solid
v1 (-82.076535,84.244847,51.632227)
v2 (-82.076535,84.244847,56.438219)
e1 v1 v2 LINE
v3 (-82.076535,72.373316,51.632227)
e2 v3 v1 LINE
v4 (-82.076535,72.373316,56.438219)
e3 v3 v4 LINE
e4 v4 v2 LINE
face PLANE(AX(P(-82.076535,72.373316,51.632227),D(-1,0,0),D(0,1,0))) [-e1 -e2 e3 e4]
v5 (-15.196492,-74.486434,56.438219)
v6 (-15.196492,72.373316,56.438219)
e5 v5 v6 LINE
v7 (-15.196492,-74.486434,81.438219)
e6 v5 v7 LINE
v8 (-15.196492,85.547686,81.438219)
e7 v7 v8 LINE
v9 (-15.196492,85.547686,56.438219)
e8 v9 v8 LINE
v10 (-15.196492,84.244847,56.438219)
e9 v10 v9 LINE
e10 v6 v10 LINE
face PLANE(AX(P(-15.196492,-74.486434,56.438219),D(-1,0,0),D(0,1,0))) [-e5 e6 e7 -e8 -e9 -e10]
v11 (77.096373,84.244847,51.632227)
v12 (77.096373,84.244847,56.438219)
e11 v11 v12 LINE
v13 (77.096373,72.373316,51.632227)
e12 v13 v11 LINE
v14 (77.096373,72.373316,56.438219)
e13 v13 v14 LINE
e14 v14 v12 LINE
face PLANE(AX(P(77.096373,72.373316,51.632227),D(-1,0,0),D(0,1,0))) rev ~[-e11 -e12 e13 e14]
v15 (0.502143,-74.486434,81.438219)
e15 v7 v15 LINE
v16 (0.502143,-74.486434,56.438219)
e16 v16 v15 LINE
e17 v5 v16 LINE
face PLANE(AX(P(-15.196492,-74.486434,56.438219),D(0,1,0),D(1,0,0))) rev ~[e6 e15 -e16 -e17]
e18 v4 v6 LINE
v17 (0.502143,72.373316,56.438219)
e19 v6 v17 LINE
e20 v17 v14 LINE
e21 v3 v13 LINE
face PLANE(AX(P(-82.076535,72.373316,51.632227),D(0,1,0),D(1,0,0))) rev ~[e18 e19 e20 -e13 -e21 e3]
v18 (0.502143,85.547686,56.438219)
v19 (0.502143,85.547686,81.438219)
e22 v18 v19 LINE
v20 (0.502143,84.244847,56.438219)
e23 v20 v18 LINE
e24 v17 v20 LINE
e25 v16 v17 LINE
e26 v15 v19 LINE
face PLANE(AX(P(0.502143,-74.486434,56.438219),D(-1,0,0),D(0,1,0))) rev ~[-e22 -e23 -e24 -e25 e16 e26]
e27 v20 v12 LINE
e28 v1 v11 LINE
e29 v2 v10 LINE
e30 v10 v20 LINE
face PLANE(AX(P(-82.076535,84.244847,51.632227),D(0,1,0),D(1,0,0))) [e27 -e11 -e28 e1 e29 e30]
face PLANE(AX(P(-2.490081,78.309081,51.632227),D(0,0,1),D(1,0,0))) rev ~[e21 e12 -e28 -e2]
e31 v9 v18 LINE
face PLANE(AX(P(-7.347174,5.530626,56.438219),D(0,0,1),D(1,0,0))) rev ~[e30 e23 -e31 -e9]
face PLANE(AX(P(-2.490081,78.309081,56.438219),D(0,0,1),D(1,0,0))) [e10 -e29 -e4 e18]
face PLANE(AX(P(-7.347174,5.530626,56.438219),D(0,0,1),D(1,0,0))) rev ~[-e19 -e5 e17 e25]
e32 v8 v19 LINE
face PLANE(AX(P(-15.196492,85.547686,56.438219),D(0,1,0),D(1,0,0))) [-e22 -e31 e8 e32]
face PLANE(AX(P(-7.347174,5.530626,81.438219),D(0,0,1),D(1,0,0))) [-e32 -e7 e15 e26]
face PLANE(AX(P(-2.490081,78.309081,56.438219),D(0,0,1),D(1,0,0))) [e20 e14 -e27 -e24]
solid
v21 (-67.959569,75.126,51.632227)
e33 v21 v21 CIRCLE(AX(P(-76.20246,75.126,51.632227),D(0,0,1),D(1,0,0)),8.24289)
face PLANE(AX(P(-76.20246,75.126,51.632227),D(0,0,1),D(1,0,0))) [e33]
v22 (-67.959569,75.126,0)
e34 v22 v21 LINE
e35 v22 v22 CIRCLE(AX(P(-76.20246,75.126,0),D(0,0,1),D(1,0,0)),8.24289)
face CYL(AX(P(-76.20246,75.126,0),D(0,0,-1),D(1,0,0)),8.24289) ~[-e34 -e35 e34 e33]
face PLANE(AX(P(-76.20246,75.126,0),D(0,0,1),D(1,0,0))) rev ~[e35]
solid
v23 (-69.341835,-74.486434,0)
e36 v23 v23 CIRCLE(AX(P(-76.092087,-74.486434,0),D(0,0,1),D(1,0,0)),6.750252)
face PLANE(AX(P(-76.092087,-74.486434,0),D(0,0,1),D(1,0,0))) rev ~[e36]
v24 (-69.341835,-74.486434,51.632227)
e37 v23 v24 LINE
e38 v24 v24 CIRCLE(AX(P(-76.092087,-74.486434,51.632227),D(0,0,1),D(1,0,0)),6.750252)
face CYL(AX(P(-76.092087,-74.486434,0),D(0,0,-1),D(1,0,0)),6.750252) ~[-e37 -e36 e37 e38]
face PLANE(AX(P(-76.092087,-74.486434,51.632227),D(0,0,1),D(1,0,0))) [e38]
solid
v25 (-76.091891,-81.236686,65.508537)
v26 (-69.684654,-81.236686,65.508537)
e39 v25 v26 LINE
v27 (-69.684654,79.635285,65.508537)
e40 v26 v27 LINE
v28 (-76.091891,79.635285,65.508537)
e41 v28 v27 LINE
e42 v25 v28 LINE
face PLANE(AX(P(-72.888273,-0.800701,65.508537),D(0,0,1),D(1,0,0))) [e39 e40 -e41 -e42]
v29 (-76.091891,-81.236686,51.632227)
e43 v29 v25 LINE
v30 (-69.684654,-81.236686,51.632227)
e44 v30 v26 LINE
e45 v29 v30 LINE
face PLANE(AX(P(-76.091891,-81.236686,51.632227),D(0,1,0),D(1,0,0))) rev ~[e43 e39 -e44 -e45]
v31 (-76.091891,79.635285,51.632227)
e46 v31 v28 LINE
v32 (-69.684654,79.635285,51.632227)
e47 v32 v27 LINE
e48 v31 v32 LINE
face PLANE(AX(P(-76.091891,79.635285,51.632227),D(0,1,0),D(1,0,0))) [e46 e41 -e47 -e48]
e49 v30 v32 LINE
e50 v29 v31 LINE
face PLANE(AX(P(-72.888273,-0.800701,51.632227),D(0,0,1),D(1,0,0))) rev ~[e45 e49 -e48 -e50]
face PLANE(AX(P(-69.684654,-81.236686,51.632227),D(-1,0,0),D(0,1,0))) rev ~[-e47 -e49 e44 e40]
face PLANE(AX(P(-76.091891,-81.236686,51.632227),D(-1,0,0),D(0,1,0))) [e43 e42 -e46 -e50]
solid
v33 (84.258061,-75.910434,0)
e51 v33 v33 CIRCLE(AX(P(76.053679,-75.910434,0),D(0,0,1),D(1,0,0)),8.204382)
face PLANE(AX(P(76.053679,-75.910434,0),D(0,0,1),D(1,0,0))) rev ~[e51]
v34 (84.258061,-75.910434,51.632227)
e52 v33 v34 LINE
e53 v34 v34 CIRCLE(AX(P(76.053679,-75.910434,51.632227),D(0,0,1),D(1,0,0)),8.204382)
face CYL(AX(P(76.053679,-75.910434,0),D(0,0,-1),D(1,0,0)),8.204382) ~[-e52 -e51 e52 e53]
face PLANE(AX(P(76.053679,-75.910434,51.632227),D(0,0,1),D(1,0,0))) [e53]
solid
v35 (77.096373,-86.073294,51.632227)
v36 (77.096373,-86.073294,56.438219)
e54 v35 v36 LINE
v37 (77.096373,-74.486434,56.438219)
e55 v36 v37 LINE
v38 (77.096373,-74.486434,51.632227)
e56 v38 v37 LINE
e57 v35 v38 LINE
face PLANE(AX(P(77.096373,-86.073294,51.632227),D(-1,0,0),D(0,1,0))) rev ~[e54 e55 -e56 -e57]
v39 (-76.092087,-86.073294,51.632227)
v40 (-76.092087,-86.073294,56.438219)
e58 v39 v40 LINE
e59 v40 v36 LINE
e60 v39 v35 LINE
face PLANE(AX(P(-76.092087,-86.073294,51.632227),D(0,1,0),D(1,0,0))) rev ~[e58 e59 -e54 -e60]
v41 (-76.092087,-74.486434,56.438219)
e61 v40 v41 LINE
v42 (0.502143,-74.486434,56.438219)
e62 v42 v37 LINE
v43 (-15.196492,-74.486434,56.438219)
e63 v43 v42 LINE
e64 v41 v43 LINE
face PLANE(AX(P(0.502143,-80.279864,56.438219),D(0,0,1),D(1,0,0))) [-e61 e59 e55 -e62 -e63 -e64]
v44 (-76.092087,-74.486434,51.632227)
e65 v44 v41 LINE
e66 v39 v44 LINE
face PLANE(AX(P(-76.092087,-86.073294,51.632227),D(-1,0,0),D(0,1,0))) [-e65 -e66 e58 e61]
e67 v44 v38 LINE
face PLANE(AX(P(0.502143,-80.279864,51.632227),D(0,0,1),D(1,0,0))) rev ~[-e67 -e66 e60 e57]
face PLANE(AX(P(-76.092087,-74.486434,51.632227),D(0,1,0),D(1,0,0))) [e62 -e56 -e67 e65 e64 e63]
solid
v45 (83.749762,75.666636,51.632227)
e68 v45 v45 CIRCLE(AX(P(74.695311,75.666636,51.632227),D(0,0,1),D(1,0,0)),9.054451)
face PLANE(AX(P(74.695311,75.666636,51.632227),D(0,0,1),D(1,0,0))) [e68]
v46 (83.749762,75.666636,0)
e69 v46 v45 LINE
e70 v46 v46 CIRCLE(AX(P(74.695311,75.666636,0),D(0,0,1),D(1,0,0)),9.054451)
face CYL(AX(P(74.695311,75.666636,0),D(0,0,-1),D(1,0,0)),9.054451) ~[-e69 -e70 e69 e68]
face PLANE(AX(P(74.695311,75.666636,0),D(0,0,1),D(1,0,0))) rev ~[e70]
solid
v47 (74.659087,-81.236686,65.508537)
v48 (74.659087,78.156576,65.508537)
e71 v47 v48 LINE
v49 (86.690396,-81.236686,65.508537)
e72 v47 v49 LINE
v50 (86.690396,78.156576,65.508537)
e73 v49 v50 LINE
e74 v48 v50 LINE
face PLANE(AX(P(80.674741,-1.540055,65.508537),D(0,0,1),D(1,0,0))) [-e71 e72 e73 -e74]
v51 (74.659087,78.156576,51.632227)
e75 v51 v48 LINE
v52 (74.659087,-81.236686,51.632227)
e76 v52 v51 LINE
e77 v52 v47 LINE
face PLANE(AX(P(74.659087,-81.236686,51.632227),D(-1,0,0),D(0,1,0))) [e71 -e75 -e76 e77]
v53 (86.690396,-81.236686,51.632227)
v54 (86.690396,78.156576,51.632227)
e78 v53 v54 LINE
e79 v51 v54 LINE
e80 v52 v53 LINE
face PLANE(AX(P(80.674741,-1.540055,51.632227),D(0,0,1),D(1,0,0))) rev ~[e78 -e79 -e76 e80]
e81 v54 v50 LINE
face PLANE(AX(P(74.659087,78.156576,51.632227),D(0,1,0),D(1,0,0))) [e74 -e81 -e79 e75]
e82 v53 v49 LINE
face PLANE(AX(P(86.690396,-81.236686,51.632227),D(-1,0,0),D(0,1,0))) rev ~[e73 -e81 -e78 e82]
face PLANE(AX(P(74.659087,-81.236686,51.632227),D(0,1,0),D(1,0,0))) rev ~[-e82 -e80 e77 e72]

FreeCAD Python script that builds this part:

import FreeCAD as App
import Part
import Sketcher

doc = App.newDocument("Part")
body = doc.addObject("PartDesign::Body", "Body")

# Sketch on XY plane
sketch1 = doc.addObject("Sketcher::SketchObject", "Sketch")
body.addObject(sketch1)
sketch1.AttachmentSupport = (doc.XY_Plane, [""])
sketch1.MapMode = "FlatFace"
sketch1.addGeometry(Part.Circle(App.Vector(-76, -74, 0), App.Vector(0, 0, 1), 7), False)
sketch1.addConstraint(Sketcher.Constraint("Diameter", 0, 13.500504))
sketch1.addConstraint(Sketcher.Constraint("DistanceX", 0, 3, -1, 1, 76.092087))
sketch1.addConstraint(Sketcher.Constraint("DistanceY", 0, 3, -1, 1, 74.486434))
pad1 = doc.addObject("PartDesign::Pad", "Pad")
body.addObject(pad1)
pad1.Profile = sketch1
pad1.Length = 51.632227
body2 = doc.addObject("PartDesign::Body", "Body001")

# Sketch on XY plane
sketch2 = doc.addObject("Sketcher::SketchObject", "Sketch001")
body2.addObject(sketch2)
sketch2.AttachmentSupport = (doc.getObject("XY_Plane001"), [""])
sketch2.MapMode = "FlatFace"
sketch2.addGeometry(Part.Circle(App.Vector(-76, 75, 0), App.Vector(0, 0, 1), 8), False)
sketch2.addConstraint(Sketcher.Constraint("Diameter", 0, 16.48578))
sketch2.addConstraint(Sketcher.Constraint("DistanceY", -1, 1, 0, 3, 75.126))
sketch2.addConstraint(Sketcher.Constraint("DistanceX", 0, 3, -1, 1, 76.20246))
pad2 = doc.addObject("PartDesign::Pad", "Pad001")
body2.addObject(pad2)
pad2.Profile = sketch2
pad2.Length = 51.632227
body3 = doc.addObject("PartDesign::Body", "Body002")

# Sketch on XY plane
sketch3 = doc.addObject("Sketcher::SketchObject", "Sketch002")
body3.addObject(sketch3)
sketch3.AttachmentSupport = (doc.getObject("XY_Plane002"), [""])
sketch3.MapMode = "FlatFace"
sketch3.addGeometry(Part.Circle(App.Vector(76, -76, 0), App.Vector(0, 0, 1), 8), False)
sketch3.addConstraint(Sketcher.Constraint("Diameter", 0, 16.408763))
sketch3.addConstraint(Sketcher.Constraint("DistanceX", -1, 1, 0, 3, 76.053679))
sketch3.addConstraint(Sketcher.Constraint("DistanceY", 0, 3, -1, 1, 75.910434))
pad3 = doc.addObject("PartDesign::Pad", "Pad002")
body3.addObject(pad3)
pad3.Profile = sketch3
pad3.Length = 51.632227
body4 = doc.addObject("PartDesign::Body", "Body003")

# Sketch on XY plane
sketch4 = doc.addObject("Sketcher::SketchObject", "Sketch003")
body4.addObject(sketch4)
sketch4.AttachmentSupport = (doc.getObject("XY_Plane003"), [""])
sketch4.MapMode = "FlatFace"
sketch4.addGeometry(Part.Circle(App.Vector(75, 76, 0), App.Vector(0, 0, 1), 9), False)
sketch4.addConstraint(Sketcher.Constraint("Diameter", 0, 18.108902))
sketch4.addConstraint(Sketcher.Constraint("DistanceX", -1, 1, 0, 3, 74.695311))
sketch4.addConstraint(Sketcher.Constraint("DistanceY", -1, 1, 0, 3, 75.666636))
pad4 = doc.addObject("PartDesign::Pad", "Pad003")
body4.addObject(pad4)
pad4.Profile = sketch4
pad4.Length = 51.632227
body5 = doc.addObject("PartDesign::Body", "Body004")

# Sketch on XY plane
sketch5 = doc.addObject("Sketcher::SketchObject", "Sketch004")
body5.addObject(sketch5)
sketch5.AttachmentSupport = (doc.getObject("XY_Plane004"), [""])
sketch5.MapMode = "FlatFace"
sketch5.AttachmentOffset = App.Placement(App.Vector(0, 0, 51.632227), App.Rotation())
sketch5.addGeometry(Part.LineSegment(App.Vector(-76, -74, 0), App.Vector(-76, -86, 0)), False)
sketch5.addGeometry(Part.LineSegment(App.Vector(-76, -86, 0), App.Vector(77, -86, 0)), False)
sketch5.addGeometry(Part.LineSegment(App.Vector(77, -86, 0), App.Vector(77, -74, 0)), False)
sketch5.addGeometry(Part.LineSegment(App.Vector(77, -74, 0), App.Vector(-76, -74, 0)), False)
sketch5.addConstraint(Sketcher.Constraint("Coincident", 0, 2, 1, 1))
sketch5.addConstraint(Sketcher.Constraint("Coincident", 1, 2, 2, 1))
sketch5.addConstraint(Sketcher.Constraint("Coincident", 2, 2, 3, 1))
sketch5.addConstraint(Sketcher.Constraint("Coincident", 3, 2, 0, 1))
sketch5.addConstraint(Sketcher.Constraint("Vertical", 0))
sketch5.addConstraint(Sketcher.Constraint("Horizontal", 1))
sketch5.addConstraint(Sketcher.Constraint("Vertical", 2))
sketch5.addConstraint(Sketcher.Constraint("Horizontal", 3))
sketch5.addConstraint(Sketcher.Constraint("DistanceX", 1, 1, 1, 2, 153.18846))
sketch5.addConstraint(Sketcher.Constraint("DistanceY", 0, 2, 0, 1, 11.58686))
sketch5.addConstraint(Sketcher.Constraint("DistanceX", 0, 2, -1, 1, 76.092087))
sketch5.addConstraint(Sketcher.Constraint("DistanceY", 0, 2, -1, 1, 86.073294))
pad5 = doc.addObject("PartDesign::Pad", "Pad004")
body5.addObject(pad5)
pad5.Profile = sketch5
pad5.Length = 4.805991
body6 = doc.addObject("PartDesign::Body", "Body005")

# Sketch on XY plane
sketch6 = doc.addObject("Sketcher::SketchObject", "Sketch005")
body6.addObject(sketch6)
sketch6.AttachmentSupport = (doc.getObject("XY_Plane005"), [""])
sketch6.MapMode = "FlatFace"
sketch6.AttachmentOffset = App.Placement(App.Vector(0, 0, 51.632227), App.Rotation())
sketch6.addGeometry(Part.LineSegment(App.Vector(-82, 84, 0), App.Vector(-82, 72, 0)), False)
sketch6.addGeometry(Part.LineSegment(App.Vector(-82, 72, 0), App.Vector(77, 72, 0)), False)
sketch6.addGeometry(Part.LineSegment(App.Vector(77, 72, 0), App.Vector(77, 84, 0)), False)
sketch6.addGeometry(Part.LineSegment(App.Vector(77, 84, 0), App.Vector(-82, 84, 0)), False)
sketch6.addConstraint(Sketcher.Constraint("Coincident", 0, 2, 1, 1))
sketch6.addConstraint(Sketcher.Constraint("Coincident", 1, 2, 2, 1))
sketch6.addConstraint(Sketcher.Constraint("Coincident", 2, 2, 3, 1))
sketch6.addConstraint(Sketcher.Constraint("Coincident", 3, 2, 0, 1))
sketch6.addConstraint(Sketcher.Constraint("Vertical", 0))
sketch6.addConstraint(Sketcher.Constraint("Horizontal", 1))
sketch6.addConstraint(Sketcher.Constraint("Vertical", 2))
sketch6.addConstraint(Sketcher.Constraint("Horizontal", 3))
sketch6.addConstraint(Sketcher.Constraint("DistanceY", 0, 2, 0, 1, 11.871532))
sketch6.addConstraint(Sketcher.Constraint("DistanceX", 1, 1, 1, 2, 159.172907))
sketch6.addConstraint(Sketcher.Constraint("DistanceX", 0, 2, -1, 1, 82.076535))
sketch6.addConstraint(Sketcher.Constraint("DistanceY", -1, 1, 0, 2, 72.373316))
pad6 = doc.addObject("PartDesign::Pad", "Pad005")
body6.addObject(pad6)
pad6.Profile = sketch6
pad6.Length = 4.805991
body7 = doc.addObject("PartDesign::Body", "Body006")

# Sketch on XY plane
sketch7 = doc.addObject("Sketcher::SketchObject", "Sketch006")
body7.addObject(sketch7)
sketch7.AttachmentSupport = (doc.getObject("XY_Plane006"), [""])
sketch7.MapMode = "FlatFace"
sketch7.AttachmentOffset = App.Placement(App.Vector(0, 0, 51.632227), App.Rotation())
sketch7.addGeometry(Part.LineSegment(App.Vector(-76, 80, 0), App.Vector(-76, -81, 0)), False)
sketch7.addGeometry(Part.LineSegment(App.Vector(-76, -81, 0), App.Vector(-70, -81, 0)), False)
sketch7.addGeometry(Part.LineSegment(App.Vector(-70, -81, 0), App.Vector(-70, 80, 0)), False)
sketch7.addGeometry(Part.LineSegment(App.Vector(-70, 80, 0), App.Vector(-76, 80, 0)), False)
sketch7.addConstraint(Sketcher.Constraint("Coincident", 0, 2, 1, 1))
sketch7.addConstraint(Sketcher.Constraint("Coincident", 1, 2, 2, 1))
sketch7.addConstraint(Sketcher.Constraint("Coincident", 2, 2, 3, 1))
sketch7.addConstraint(Sketcher.Constraint("Coincident", 3, 2, 0, 1))
sketch7.addConstraint(Sketcher.Constraint("Vertical", 0))
sketch7.addConstraint(Sketcher.Constraint("Horizontal", 1))
sketch7.addConstraint(Sketcher.Constraint("Vertical", 2))
sketch7.addConstraint(Sketcher.Constraint("Horizontal", 3))
sketch7.addConstraint(Sketcher.Constraint("DistanceY", 0, 2, 0, 1, 160.871971))
sketch7.addConstraint(Sketcher.Constraint("DistanceX", 1, 1, 1, 2, 6.407236))
sketch7.addConstraint(Sketcher.Constraint("DistanceX", 0, 2, -1, 1, 76.091891))
sketch7.addConstraint(Sketcher.Constraint("DistanceY", 0, 2, -1, 1, 81.236686))
pad7 = doc.addObject("PartDesign::Pad", "Pad006")
body7.addObject(pad7)
pad7.Profile = sketch7
pad7.Length = 13.87631
body8 = doc.addObject("PartDesign::Body", "Body007")

# Sketch on XY plane
sketch8 = doc.addObject("Sketcher::SketchObject", "Sketch007")
body8.addObject(sketch8)
sketch8.AttachmentSupport = (doc.getObject("XY_Plane007"), [""])
sketch8.MapMode = "FlatFace"
sketch8.AttachmentOffset = App.Placement(App.Vector(0, 0, 51.632227), App.Rotation())
sketch8.addGeometry(Part.LineSegment(App.Vector(75, 78, 0), App.Vector(75, -81, 0)), False)
sketch8.addGeometry(Part.LineSegment(App.Vector(75, -81, 0), App.Vector(87, -81, 0)), False)
sketch8.addGeometry(Part.LineSegment(App.Vector(87, -81, 0), App.Vector(87, 78, 0)), False)
sketch8.addGeometry(Part.LineSegment(App.Vector(87, 78, 0), App.Vector(75, 78, 0)), False)
sketch8.addConstraint(Sketcher.Constraint("Coincident", 0, 2, 1, 1))
sketch8.addConstraint(Sketcher.Constraint("Coincident", 1, 2, 2, 1))
sketch8.addConstraint(Sketcher.Constraint("Coincident", 2, 2, 3, 1))
sketch8.addConstraint(Sketcher.Constraint("Coincident", 3, 2, 0, 1))
sketch8.addConstraint(Sketcher.Constraint("Vertical", 0))
sketch8.addConstraint(Sketcher.Constraint("Horizontal", 1))
sketch8.addConstraint(Sketcher.Constraint("Vertical", 2))
sketch8.addConstraint(Sketcher.Constraint("Horizontal", 3))
sketch8.addConstraint(Sketcher.Constraint("DistanceX", 1, 1, 1, 2, 12.031309))
sketch8.addConstraint(Sketcher.Constraint("DistanceY", 0, 2, 0, 1, 159.393262))
sketch8.addConstraint(Sketcher.Constraint("DistanceX", -1, 1, 0, 2, 74.659087))
sketch8.addConstraint(Sketcher.Constraint("DistanceY", 0, 2, -1, 1, 81.236686))
pad8 = doc.addObject("PartDesign::Pad", "Pad007")
body8.addObject(pad8)
pad8.Profile = sketch8
pad8.Length = 13.87631
body5.AllowCompound = True
doc.recompute()

boolean = doc.addObject("PartDesign::Boolean", "Boolean")
body5.addObject(boolean)
boolean.Type = "Fuse"
boolean.addObjects([body6])

# Sketch on XY plane
sketch9 = doc.addObject("Sketcher::SketchObject", "Sketch008")
body5.addObject(sketch9)
sketch9.AttachmentSupport = (doc.getObject("XY_Plane004"), [""])
sketch9.MapMode = "FlatFace"
sketch9.AttachmentOffset = App.Placement(App.Vector(0, 0, 56.438219), App.Rotation())
sketch9.addGeometry(Part.LineSegment(App.Vector(-15, 86, 0), App.Vector(-15, -74, 0)), False)
sketch9.addGeometry(Part.LineSegment(App.Vector(-15, -74, 0), App.Vector(1, -74, 0)), False)
sketch9.addGeometry(Part.LineSegment(App.Vector(1, -74, 0), App.Vector(1, 86, 0)), False)
sketch9.addGeometry(Part.LineSegment(App.Vector(1, 86, 0), App.Vector(-15, 86, 0)), False)
sketch9.addConstraint(Sketcher.Constraint("Coincident", 0, 2, 1, 1))
sketch9.addConstraint(Sketcher.Constraint("Coincident", 1, 2, 2, 1))
sketch9.addConstraint(Sketcher.Constraint("Coincident", 2, 2, 3, 1))
sketch9.addConstraint(Sketcher.Constraint("Coincident", 3, 2, 0, 1))
sketch9.addConstraint(Sketcher.Constraint("Vertical", 0))
sketch9.addConstraint(Sketcher.Constraint("Horizontal", 1))
sketch9.addConstraint(Sketcher.Constraint("Vertical", 2))
sketch9.addConstraint(Sketcher.Constraint("Horizontal", 3))
sketch9.addConstraint(Sketcher.Constraint("DistanceY", 0, 2, 0, 1, 160.03412))
sketch9.addConstraint(Sketcher.Constraint("DistanceX", 1, 1, 1, 2, 15.698635))
sketch9.addConstraint(Sketcher.Constraint("DistanceX", 0, 2, -1, 1, 15.196492))
sketch9.addConstraint(Sketcher.Constraint("DistanceY", 0, 2, -1, 1, 74.486434))
pad9 = doc.addObject("PartDesign::Pad", "Pad008")
body5.addObject(pad9)
pad9.Profile = sketch9
pad9.Length = 25

doc.recompute()
